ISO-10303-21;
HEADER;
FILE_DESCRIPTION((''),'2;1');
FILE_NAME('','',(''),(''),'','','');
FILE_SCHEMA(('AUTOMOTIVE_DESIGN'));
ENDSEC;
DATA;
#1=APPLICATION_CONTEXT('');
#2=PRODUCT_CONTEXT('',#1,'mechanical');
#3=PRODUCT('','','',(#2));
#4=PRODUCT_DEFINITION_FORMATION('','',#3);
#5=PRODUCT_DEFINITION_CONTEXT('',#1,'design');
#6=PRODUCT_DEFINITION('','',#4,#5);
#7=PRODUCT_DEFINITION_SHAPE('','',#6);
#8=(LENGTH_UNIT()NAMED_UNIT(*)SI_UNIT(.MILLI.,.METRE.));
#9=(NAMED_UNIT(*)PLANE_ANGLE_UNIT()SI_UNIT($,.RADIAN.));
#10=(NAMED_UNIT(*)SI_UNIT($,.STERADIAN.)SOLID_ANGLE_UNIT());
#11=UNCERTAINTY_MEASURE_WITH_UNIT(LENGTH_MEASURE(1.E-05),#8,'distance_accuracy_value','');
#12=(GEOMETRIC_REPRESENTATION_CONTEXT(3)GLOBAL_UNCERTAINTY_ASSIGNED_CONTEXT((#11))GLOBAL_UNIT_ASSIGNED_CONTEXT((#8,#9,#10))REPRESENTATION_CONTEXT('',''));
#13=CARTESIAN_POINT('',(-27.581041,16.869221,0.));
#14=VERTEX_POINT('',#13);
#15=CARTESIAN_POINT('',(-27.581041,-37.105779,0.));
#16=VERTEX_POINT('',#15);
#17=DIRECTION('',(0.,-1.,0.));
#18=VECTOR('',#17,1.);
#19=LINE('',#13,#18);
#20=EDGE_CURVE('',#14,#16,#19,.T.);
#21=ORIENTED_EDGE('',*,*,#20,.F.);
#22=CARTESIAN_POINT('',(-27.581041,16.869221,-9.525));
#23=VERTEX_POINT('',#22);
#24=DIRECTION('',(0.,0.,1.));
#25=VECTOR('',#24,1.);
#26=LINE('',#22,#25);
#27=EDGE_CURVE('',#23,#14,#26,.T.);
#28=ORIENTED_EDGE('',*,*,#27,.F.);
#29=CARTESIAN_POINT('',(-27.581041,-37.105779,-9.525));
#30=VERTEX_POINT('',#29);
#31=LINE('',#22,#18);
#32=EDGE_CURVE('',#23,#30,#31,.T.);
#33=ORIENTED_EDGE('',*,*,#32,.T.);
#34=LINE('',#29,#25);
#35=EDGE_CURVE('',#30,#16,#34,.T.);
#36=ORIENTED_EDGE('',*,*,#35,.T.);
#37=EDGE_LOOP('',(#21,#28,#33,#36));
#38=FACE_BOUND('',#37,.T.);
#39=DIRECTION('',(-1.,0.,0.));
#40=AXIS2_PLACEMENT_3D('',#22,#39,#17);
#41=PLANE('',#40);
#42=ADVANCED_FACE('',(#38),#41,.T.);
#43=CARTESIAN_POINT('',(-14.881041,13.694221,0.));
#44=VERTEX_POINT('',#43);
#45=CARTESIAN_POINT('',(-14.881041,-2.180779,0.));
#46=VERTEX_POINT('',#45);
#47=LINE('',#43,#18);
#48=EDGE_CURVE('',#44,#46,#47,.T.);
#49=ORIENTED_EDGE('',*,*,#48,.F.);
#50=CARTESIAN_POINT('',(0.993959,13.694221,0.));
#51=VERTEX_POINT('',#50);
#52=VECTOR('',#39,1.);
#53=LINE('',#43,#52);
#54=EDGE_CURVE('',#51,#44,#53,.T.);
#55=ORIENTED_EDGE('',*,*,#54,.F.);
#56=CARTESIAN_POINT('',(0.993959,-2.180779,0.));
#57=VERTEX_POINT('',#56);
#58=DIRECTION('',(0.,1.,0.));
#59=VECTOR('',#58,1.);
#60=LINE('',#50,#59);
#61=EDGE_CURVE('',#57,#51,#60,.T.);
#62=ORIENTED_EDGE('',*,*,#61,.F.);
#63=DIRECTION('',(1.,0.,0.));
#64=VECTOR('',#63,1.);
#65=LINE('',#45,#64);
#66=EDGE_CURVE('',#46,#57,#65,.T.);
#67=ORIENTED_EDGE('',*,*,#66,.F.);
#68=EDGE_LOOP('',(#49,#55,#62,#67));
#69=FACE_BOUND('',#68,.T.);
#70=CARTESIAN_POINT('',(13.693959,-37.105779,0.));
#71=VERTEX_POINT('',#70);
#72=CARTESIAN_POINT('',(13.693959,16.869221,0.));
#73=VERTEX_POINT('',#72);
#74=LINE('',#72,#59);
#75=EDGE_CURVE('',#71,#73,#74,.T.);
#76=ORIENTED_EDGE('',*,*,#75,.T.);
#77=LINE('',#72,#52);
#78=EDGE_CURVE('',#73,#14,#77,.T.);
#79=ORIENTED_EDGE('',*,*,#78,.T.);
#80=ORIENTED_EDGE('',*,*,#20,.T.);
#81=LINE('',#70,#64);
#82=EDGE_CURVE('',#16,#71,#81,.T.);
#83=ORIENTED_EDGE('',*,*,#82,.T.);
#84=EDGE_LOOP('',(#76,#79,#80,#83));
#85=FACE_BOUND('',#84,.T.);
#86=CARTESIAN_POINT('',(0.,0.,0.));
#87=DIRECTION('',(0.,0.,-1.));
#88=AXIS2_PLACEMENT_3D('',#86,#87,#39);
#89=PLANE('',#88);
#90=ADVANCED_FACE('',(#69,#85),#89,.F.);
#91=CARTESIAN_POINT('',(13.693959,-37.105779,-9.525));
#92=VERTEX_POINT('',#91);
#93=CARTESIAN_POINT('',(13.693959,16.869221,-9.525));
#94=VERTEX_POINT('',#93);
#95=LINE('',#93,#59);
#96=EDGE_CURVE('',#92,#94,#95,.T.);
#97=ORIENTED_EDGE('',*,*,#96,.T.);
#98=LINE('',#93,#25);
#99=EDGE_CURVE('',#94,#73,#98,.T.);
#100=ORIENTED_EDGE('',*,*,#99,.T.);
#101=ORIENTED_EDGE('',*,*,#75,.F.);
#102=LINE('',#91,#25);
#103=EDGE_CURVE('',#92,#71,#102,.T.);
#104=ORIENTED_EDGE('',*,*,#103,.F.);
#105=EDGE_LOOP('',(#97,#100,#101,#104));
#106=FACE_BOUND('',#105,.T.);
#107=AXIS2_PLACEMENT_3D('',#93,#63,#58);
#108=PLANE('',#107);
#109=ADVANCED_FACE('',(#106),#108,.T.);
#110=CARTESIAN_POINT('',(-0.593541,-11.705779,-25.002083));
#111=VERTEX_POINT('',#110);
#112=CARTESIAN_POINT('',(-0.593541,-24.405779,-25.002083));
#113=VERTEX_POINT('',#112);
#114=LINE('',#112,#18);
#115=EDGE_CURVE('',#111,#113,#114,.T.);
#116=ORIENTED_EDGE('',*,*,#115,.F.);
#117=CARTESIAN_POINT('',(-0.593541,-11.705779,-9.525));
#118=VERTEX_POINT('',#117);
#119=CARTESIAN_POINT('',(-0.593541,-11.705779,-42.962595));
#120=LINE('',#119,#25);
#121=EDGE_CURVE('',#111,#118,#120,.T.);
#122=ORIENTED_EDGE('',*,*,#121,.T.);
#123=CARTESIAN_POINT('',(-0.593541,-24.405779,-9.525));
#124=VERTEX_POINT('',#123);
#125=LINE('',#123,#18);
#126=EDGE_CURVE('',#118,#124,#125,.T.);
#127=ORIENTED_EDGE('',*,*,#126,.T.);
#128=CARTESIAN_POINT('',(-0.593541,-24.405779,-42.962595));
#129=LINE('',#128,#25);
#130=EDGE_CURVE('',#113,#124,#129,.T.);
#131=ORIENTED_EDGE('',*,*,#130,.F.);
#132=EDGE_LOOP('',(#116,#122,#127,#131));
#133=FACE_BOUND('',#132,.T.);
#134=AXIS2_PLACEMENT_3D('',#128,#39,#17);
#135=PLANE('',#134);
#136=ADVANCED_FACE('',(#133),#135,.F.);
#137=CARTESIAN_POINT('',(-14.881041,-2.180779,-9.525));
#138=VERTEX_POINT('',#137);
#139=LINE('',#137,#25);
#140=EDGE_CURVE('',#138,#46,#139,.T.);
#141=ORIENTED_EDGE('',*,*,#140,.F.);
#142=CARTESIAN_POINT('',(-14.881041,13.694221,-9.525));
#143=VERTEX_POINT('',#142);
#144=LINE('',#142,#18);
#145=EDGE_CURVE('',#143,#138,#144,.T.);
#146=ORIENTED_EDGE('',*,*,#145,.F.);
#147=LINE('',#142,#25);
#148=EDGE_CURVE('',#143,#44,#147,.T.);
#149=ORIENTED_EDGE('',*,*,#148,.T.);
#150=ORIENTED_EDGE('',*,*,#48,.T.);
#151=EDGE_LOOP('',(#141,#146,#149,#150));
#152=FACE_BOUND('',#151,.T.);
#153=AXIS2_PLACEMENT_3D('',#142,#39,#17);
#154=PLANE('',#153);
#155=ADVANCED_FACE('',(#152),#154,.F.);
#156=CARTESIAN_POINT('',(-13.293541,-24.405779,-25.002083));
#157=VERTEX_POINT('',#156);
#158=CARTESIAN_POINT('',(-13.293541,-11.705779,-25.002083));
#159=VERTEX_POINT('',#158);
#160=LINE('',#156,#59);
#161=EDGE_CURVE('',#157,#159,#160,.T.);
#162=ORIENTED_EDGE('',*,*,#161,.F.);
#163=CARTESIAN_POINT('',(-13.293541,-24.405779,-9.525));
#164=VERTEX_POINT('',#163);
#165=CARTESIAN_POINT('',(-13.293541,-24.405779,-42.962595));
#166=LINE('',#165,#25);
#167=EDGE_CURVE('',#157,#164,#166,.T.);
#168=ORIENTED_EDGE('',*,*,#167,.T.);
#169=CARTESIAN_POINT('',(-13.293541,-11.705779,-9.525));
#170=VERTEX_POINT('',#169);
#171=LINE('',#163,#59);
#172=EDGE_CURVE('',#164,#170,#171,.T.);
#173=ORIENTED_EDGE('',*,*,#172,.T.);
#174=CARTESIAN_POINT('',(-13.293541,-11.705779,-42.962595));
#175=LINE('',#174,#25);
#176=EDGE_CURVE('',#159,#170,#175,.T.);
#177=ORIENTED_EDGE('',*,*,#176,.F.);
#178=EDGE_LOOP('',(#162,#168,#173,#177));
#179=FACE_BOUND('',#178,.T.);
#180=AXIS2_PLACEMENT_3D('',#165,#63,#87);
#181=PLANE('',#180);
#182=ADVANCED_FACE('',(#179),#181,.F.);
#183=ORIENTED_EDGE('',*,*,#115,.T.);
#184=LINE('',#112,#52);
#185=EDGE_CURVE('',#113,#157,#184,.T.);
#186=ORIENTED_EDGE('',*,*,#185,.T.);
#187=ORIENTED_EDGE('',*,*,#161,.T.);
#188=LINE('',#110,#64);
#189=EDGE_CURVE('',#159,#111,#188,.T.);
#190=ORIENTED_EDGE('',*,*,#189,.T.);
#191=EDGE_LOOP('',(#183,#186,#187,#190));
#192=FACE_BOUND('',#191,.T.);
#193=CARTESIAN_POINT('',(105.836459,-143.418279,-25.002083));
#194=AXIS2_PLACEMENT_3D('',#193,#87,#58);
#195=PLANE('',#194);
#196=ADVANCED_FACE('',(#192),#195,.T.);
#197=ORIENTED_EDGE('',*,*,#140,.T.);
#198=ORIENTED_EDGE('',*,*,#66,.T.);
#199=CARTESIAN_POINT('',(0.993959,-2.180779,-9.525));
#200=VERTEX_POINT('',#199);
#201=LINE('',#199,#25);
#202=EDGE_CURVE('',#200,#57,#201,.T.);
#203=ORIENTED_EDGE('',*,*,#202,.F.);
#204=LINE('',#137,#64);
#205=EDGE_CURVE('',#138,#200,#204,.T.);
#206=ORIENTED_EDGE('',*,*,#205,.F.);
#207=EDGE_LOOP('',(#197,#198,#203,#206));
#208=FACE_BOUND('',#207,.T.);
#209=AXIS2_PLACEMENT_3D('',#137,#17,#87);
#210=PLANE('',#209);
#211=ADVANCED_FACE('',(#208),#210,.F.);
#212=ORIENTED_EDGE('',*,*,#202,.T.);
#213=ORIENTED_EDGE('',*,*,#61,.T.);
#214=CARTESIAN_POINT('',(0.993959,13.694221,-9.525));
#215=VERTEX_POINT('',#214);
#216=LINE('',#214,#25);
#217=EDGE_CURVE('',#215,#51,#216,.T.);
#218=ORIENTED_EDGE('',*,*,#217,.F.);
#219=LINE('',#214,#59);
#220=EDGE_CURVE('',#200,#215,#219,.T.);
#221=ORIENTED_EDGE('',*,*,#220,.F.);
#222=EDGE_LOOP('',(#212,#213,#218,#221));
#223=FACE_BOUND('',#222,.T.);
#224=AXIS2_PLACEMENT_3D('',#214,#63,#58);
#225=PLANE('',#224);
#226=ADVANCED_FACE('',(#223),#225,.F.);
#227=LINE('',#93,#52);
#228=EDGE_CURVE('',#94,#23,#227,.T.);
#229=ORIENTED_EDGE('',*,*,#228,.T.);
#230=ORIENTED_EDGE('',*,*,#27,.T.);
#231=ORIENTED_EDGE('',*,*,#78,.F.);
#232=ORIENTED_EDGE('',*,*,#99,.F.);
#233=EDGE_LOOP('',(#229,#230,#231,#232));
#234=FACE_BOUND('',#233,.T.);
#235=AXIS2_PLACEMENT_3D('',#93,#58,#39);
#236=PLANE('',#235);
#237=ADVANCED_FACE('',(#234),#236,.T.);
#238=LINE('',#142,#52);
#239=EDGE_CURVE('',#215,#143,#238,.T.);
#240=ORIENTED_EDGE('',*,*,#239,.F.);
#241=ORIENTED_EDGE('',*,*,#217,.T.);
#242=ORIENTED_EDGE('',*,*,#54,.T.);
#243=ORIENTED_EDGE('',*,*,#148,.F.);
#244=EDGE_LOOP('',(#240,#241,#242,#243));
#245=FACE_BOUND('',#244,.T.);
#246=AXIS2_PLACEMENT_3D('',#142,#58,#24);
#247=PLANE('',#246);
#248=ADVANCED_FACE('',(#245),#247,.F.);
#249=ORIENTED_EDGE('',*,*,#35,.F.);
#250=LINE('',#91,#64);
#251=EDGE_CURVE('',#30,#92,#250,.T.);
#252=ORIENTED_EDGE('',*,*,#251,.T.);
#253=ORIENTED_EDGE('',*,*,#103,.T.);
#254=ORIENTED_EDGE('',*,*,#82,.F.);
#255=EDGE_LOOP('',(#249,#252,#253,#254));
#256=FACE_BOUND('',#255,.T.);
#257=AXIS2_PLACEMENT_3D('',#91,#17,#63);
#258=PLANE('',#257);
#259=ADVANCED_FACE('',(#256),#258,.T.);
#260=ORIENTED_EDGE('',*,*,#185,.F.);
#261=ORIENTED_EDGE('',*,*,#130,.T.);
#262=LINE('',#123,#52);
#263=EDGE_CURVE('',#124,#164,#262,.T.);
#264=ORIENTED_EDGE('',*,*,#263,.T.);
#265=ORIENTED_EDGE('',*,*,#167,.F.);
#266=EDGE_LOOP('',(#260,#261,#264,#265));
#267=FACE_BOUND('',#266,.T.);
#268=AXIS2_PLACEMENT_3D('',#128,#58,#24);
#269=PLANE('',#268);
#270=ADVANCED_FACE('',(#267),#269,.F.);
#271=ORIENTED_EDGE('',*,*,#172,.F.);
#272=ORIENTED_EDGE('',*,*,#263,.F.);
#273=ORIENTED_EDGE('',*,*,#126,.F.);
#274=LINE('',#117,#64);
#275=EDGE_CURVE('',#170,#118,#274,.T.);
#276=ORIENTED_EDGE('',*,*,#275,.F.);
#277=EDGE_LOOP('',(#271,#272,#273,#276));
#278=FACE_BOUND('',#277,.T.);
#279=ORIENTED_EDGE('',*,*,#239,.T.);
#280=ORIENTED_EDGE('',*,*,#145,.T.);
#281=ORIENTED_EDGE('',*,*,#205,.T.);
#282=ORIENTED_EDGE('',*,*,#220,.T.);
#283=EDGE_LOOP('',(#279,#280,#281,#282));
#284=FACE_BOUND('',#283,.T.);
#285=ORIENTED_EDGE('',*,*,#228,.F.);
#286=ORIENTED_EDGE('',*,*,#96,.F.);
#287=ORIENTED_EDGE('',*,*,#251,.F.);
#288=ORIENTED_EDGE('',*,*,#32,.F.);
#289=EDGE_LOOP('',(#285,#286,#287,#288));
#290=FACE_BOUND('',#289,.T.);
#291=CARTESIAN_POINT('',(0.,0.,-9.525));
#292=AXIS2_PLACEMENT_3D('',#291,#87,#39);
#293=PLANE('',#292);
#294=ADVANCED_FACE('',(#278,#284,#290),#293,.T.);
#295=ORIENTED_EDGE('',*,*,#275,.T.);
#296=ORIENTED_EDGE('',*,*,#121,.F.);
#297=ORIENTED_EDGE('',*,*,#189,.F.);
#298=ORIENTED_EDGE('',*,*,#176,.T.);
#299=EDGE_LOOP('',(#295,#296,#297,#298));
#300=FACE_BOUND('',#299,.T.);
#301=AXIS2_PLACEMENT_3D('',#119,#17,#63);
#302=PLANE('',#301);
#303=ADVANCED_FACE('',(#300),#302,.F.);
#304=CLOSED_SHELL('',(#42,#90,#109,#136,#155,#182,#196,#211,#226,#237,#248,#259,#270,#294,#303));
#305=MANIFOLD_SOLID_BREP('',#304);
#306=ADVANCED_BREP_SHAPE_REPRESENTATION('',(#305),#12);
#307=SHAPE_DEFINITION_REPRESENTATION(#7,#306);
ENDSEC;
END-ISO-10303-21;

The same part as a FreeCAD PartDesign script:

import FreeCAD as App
import Part
import Sketcher
Q = App.Units.Quantity

doc = App.newDocument("Part")
body = doc.addObject("PartDesign::Body", "Body")

# Sketch on XY plane
sketch1 = body.newObject("Sketcher::SketchObject", "Sketch")
sketch1.AttachmentSupport = (doc.getObject("XY_Plane"), [""])
sketch1.MapMode = "FlatFace"
sketch1.addGeometry([
    Part.LineSegment(App.Vector(-28, 17, 0), App.Vector(-28, -37, 0)),  # 0
    Part.LineSegment(App.Vector(-28, -37, 0), App.Vector(14, -37, 0)),  # 1
    Part.LineSegment(App.Vector(14, -37, 0), App.Vector(14, 17, 0)),  # 2
    Part.LineSegment(App.Vector(14, 17, 0), App.Vector(-28, 17, 0)),  # 3
    Part.LineSegment(App.Vector(1, -2, 0), App.Vector(-15, -2, 0)),  # 4
    Part.LineSegment(App.Vector(-15, -2, 0), App.Vector(-15, 14, 0)),  # 5
    Part.LineSegment(App.Vector(-15, 14, 0), App.Vector(1, 14, 0)),  # 6
    Part.LineSegment(App.Vector(1, 14, 0), App.Vector(1, -2, 0)),  # 7
], False)
sketch1.addConstraint([
    Sketcher.Constraint("Coincident", 0, 2, 1, 1),
    Sketcher.Constraint("Coincident", 1, 2, 2, 1),
    Sketcher.Constraint("Coincident", 2, 2, 3, 1),
    Sketcher.Constraint("Coincident", 3, 2, 0, 1),
    Sketcher.Constraint("Coincident", 4, 2, 5, 1),
    Sketcher.Constraint("Coincident", 5, 2, 6, 1),
    Sketcher.Constraint("Coincident", 6, 2, 7, 1),
    Sketcher.Constraint("Coincident", 7, 2, 4, 1),
    Sketcher.Constraint("Vertical", 0),
    Sketcher.Constraint("Horizontal", 1),
    Sketcher.Constraint("Vertical", 2),
    Sketcher.Constraint("Horizontal", 3),
    Sketcher.Constraint("Horizontal", 4),
    Sketcher.Constraint("Vertical", 5),
    Sketcher.Constraint("Horizontal", 6),
    Sketcher.Constraint("Vertical", 7),
    Sketcher.Constraint("Equal", 6, 5),
    Sketcher.Constraint("DistanceY", 0, 2, 5, 2, Q("2 in")),
    Sketcher.Constraint("DistanceX", 3, 2, 4, 2, Q("0.5 in")),
    Sketcher.Constraint("DistanceX", 6, 2, 2, 2, Q("0.5 in")),
    Sketcher.Constraint("DistanceX", 1, 1, 1, 2, Q("1.625 in")),
    Sketcher.Constraint("DistanceY", 0, 2, 0, 1, Q("2.125 in")),
    Sketcher.Constraint("DistanceX", 0, 2, -1, 1, 27.581041),
    Sketcher.Constraint("DistanceY", 0, 2, -1, 1, 37.105779),
])
pad1 = body.newObject("PartDesign::Pad", "Pad")
pad1.Profile = sketch1
pad1.Length = Q("0.375 in")
pad1.Reversed = True

# Sketch on XY plane
sketch2 = body.newObject("Sketcher::SketchObject", "Sketch001")
sketch2.AttachmentSupport = (doc.getObject("XY_Plane"), [""])
sketch2.MapMode = "FlatFace"
sketch2.AttachmentOffset = App.Placement(App.Vector(0, 0, -0.375 * 25.4), App.Rotation())
sketch2.addGeometry([
    Part.LineSegment(App.Vector(-1, -12, 0), App.Vector(-1, -24, 0)),
    Part.LineSegment(App.Vector(-1, -24, 0), App.Vector(-13, -24, 0)),
    Part.LineSegment(App.Vector(-13, -24, 0), App.Vector(-13, -12, 0)),
    Part.LineSegment(App.Vector(-13, -12, 0), App.Vector(-1, -12, 0)),
], False)
sketch2.addConstraint([
    Sketcher.Constraint("Coincident", 0, 2, 1, 1),
    Sketcher.Constraint("Coincident", 1, 2, 2, 1),
    Sketcher.Constraint("Coincident", 2, 2, 3, 1),
    Sketcher.Constraint("Coincident", 3, 2, 0, 1),
    Sketcher.Constraint("Vertical", 0),
    Sketcher.Constraint("Horizontal", 1),
    Sketcher.Constraint("Vertical", 2),
    Sketcher.Constraint("Horizontal", 3),
    Sketcher.Constraint("Equal", 3, 0),
    Sketcher.Constraint("DistanceX", 1, 2, 1, 1, Q("0.5 in")),
    Sketcher.Constraint("DistanceX", 0, 2, -1, 1, 0.593541),
    Sketcher.Constraint("DistanceY", 0, 2, -1, 1, 24.405779),
])
pad2 = body.newObject("PartDesign::Pad", "Pad001")
pad2.Profile = sketch2
pad2.Length = 15.477083
pad2.Reversed = True

doc.recompute()
